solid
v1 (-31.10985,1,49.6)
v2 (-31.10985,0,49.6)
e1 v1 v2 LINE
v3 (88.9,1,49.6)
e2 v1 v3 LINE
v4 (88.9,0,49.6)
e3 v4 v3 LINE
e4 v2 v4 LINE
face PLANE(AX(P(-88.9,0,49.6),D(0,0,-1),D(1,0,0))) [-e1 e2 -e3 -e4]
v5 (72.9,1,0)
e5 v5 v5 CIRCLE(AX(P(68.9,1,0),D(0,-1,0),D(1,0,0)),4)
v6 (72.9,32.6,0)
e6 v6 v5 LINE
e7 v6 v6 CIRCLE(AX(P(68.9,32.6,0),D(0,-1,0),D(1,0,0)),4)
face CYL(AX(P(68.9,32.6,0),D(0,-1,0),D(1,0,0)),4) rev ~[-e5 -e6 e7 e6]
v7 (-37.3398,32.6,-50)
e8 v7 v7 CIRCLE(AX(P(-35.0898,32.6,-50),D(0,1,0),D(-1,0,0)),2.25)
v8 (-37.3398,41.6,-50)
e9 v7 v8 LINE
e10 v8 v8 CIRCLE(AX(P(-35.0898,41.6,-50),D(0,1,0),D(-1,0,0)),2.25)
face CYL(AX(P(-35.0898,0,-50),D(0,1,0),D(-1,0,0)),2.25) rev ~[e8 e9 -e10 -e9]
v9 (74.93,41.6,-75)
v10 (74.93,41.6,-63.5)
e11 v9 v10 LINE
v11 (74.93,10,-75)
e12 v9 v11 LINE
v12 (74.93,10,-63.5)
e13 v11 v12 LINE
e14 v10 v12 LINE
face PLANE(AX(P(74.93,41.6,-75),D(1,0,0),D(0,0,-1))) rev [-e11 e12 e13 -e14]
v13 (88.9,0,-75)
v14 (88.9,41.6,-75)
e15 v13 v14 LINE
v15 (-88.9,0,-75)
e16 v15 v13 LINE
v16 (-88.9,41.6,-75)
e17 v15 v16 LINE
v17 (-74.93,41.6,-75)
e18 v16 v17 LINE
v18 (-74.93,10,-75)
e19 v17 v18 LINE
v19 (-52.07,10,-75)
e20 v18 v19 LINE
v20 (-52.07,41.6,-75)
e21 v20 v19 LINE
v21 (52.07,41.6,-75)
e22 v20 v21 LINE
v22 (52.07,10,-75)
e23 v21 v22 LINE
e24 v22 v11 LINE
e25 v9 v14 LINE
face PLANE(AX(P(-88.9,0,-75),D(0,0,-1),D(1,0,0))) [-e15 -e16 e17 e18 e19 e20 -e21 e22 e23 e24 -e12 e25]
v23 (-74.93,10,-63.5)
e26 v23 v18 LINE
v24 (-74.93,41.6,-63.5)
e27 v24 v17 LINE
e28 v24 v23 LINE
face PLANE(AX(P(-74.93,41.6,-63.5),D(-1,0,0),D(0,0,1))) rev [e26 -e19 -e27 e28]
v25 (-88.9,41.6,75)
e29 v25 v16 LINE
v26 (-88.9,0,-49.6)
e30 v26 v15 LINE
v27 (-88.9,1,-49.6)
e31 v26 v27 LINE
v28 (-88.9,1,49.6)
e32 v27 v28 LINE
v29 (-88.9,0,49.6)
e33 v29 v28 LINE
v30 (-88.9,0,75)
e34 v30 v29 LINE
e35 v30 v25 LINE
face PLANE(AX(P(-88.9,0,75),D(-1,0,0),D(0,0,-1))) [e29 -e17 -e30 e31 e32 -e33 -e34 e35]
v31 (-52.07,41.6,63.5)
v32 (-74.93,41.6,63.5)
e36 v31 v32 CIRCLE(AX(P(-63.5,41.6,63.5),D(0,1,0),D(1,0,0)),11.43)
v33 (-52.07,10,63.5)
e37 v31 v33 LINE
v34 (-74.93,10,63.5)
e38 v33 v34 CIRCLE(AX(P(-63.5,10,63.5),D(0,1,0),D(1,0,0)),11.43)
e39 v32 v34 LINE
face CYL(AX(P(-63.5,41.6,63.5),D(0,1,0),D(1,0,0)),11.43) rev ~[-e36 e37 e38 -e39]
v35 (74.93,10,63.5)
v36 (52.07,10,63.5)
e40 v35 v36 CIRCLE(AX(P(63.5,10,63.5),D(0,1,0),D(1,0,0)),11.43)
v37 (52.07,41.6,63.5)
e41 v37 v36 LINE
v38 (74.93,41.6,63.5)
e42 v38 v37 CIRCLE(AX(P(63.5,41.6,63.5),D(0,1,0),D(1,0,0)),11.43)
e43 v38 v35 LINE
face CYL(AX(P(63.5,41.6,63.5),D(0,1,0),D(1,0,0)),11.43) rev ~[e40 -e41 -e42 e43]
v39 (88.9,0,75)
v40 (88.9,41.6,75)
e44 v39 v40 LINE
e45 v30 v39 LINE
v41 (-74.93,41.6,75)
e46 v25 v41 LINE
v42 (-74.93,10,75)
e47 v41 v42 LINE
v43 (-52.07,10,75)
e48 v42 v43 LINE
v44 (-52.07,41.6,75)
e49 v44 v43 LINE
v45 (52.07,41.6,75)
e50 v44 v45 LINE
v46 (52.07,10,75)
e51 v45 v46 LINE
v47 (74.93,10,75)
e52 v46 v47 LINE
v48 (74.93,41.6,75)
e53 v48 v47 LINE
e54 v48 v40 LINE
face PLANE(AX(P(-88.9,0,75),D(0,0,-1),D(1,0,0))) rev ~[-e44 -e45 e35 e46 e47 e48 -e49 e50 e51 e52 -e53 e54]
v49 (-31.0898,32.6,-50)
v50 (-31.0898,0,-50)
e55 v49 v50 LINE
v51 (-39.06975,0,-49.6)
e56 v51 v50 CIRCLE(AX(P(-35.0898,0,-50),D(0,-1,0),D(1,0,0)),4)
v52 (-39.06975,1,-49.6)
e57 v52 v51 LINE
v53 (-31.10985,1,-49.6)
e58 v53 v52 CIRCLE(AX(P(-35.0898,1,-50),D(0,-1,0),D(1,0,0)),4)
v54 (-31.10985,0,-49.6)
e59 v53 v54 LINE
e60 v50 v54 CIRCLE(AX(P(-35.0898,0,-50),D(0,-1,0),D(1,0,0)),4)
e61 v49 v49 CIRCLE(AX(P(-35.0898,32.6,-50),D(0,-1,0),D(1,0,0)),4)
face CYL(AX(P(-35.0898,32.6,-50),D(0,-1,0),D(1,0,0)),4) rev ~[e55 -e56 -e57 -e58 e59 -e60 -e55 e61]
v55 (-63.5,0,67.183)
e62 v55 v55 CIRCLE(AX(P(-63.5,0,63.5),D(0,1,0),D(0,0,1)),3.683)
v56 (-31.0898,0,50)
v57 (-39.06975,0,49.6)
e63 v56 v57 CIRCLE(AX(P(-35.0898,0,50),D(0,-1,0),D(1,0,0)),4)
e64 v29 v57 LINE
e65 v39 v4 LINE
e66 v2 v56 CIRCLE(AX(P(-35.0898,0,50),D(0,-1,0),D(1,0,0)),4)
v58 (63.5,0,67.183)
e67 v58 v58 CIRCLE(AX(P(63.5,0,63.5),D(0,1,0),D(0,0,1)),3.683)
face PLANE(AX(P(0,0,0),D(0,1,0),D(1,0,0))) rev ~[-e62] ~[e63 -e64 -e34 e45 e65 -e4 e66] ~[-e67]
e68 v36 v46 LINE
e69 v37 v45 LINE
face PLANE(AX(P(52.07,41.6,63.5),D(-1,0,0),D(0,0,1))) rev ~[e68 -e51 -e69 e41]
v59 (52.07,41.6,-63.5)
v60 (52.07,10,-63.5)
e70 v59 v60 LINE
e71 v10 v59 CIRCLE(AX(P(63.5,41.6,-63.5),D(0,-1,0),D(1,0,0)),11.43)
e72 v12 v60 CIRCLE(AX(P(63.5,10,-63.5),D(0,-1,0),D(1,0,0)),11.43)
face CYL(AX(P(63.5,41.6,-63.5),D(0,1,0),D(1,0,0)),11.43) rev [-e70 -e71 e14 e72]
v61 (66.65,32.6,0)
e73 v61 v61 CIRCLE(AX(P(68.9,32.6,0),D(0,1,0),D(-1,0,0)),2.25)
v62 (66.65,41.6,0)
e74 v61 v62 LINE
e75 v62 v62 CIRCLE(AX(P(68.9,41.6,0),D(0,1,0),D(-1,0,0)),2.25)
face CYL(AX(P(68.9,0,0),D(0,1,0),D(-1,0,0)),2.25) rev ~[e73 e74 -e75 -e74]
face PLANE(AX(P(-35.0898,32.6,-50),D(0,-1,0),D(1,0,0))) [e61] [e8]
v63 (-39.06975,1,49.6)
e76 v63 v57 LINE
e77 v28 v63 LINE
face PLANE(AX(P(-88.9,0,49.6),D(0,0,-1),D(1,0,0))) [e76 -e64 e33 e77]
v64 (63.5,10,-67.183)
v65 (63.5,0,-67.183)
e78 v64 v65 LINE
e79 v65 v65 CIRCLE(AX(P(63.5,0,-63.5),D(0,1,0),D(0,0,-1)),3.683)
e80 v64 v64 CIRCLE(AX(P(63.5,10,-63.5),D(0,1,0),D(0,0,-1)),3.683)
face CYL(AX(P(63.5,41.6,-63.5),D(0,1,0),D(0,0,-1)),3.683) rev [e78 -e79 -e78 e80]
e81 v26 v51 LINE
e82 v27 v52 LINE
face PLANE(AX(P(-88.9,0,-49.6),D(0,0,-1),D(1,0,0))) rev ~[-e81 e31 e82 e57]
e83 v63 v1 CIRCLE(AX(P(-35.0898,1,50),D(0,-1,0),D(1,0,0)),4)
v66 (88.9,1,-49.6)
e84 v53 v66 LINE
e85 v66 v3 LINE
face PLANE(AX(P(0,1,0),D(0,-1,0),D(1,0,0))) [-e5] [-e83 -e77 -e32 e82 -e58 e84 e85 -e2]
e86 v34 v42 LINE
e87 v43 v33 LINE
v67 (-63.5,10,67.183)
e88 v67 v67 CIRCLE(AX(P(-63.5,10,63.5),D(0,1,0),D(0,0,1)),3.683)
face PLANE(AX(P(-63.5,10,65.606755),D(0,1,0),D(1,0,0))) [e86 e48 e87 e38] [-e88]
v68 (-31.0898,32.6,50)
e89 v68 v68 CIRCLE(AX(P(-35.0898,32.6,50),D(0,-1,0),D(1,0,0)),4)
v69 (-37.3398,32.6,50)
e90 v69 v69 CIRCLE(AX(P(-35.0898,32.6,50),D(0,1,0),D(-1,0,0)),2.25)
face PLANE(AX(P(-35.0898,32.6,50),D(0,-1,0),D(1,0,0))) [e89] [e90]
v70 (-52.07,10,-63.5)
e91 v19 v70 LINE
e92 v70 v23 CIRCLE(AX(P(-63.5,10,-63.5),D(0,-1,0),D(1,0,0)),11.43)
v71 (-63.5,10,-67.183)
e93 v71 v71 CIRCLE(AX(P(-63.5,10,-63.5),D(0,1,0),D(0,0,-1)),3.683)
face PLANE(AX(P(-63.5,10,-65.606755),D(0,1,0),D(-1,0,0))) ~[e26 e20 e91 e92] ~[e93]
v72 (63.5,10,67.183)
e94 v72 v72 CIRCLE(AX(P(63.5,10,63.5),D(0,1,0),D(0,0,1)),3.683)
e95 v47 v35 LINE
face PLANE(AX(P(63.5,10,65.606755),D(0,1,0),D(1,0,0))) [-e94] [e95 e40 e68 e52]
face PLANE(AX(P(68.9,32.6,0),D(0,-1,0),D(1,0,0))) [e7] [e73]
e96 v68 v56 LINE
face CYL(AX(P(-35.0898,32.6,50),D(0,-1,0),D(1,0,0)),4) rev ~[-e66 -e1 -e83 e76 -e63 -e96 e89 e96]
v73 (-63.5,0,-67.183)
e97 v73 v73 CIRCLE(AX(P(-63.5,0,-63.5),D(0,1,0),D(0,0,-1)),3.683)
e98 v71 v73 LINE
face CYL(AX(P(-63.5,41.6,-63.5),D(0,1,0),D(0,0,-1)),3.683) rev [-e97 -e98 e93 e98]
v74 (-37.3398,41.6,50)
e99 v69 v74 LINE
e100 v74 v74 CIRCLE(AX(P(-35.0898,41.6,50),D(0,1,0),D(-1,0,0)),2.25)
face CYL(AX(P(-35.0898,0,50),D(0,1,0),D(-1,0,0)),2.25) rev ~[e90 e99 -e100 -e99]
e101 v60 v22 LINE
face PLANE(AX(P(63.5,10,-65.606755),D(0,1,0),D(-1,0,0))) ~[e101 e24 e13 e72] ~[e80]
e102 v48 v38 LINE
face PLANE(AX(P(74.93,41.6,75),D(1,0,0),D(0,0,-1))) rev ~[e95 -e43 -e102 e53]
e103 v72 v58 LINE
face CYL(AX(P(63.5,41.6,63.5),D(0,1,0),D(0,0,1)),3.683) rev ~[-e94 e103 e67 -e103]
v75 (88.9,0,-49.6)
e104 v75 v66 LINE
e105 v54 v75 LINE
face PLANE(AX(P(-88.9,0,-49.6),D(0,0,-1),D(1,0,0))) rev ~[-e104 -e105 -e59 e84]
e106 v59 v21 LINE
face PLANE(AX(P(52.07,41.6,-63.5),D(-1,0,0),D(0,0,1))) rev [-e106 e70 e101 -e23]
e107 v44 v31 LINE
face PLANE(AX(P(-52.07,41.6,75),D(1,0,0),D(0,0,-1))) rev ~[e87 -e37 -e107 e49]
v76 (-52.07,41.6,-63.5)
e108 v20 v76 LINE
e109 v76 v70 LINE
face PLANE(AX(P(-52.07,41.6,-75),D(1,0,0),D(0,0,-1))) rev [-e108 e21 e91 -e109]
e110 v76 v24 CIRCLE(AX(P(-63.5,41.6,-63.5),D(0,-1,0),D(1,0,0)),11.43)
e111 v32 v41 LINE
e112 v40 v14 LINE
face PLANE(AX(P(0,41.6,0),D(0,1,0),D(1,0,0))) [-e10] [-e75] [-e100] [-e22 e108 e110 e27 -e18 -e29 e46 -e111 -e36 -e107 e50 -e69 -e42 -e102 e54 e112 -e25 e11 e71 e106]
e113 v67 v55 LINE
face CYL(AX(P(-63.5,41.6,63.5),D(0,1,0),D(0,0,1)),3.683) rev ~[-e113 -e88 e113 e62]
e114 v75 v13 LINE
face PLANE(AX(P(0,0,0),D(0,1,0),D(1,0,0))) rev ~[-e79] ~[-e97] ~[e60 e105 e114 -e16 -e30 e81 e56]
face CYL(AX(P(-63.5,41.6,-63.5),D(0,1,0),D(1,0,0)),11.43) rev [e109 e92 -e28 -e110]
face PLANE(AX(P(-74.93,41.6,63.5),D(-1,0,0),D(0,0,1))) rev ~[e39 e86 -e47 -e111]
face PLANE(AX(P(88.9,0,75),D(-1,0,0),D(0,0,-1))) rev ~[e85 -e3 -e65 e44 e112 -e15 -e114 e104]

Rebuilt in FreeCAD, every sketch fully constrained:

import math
import FreeCAD as App
import Part
import Sketcher

V = App.Vector

doc = App.newDocument("Part")
params = doc.addObject("Spreadsheet::Sheet", "Params")
for row, (alias, value) in enumerate([
    ("sketch1_height", "150 mm"),
    ("sketch1_width", "177.8 mm"),
    ("pad1_length", "41.6 mm"),
    ("sketch3_radius", "11.43 mm"),
    ("sketch3_height", "11.5 mm"),
    ("pocket2_length", "31.6 mm"),
    ("sketch4_diameter", "4.5 mm"),
    ("hole_diameter", "4.5 mm"),
    ("hole_cbore_diameter", "8 mm"),
    ("hole_cbore_depth", "32.6 mm"),
    ("sketch5_width", "177.8 mm"),
    ("sketch5_height", "99.2 mm"),
    ("pocket3_length", "1 mm"),
], start=1):
    params.set(f"A{row}", alias)
    params.set(f"B{row}", "=" + value)
    params.setAlias(f"B{row}", alias)

body = doc.addObject("PartDesign::Body", "Body")

# Sketch on XZ plane
sketch1 = body.newObject("Sketcher::SketchObject", "Sketch")
sketch1.AttachmentSupport = (doc.getObject("XZ_Plane"), [""])
sketch1.MapMode = "FlatFace"
sketch1.addGeometry(Part.LineSegment(V(-89, -75, 0), V(-89, 75, 0)), False)
sketch1.addGeometry(Part.LineSegment(V(-89, 75, 0), V(89, 75, 0)), False)
sketch1.addGeometry(Part.LineSegment(V(89, 75, 0), V(89, -75, 0)), False)
sketch1.addGeometry(Part.LineSegment(V(89, -75, 0), V(-89, -75, 0)), False)
sketch1.addConstraint(Sketcher.Constraint("Coincident", 0, 2, 1, 1))
sketch1.addConstraint(Sketcher.Constraint("Coincident", 1, 2, 2, 1))
sketch1.addConstraint(Sketcher.Constraint("Coincident", 2, 2, 3, 1))
sketch1.addConstraint(Sketcher.Constraint("Coincident", 3, 2, 0, 1))
sketch1.addConstraint(Sketcher.Constraint("Vertical", 0))
sketch1.addConstraint(Sketcher.Constraint("Horizontal", 1))
sketch1.addConstraint(Sketcher.Constraint("Vertical", 2))
sketch1.addConstraint(Sketcher.Constraint("Horizontal", 3))
sketch1.addConstraint(Sketcher.Constraint("Symmetric", 0, 2, 2, 2, -1, 1))
sketch1.addConstraint(Sketcher.Constraint("DistanceY", 0, 1, 0, 2, 150.0))
sketch1.addConstraint(Sketcher.Constraint("DistanceX", 1, 1, 1, 2, 177.8))
sketch1.setExpression("Constraints[9]", "Params.sketch1_height")
sketch1.setExpression("Constraints[10]", "Params.sketch1_width")
pad1 = body.newObject("PartDesign::Pad", "Pad")
pad1.Profile = sketch1
pad1.setExpression("Length", "Params.pad1_length")
pad1.Reversed = True

# Sketch on XZ plane
sketch2 = body.newObject("Sketcher::SketchObject", "Sketch001")
sketch2.AttachmentSupport = (doc.getObject("XZ_Plane"), [""])
sketch2.MapMode = "FlatFace"
sketch2.AttachmentOffset = App.Placement(V(0, 0, -41.6), App.Rotation())
sketch2.addGeometry(Part.Circle(V(63.5, 63.5, 0), V(0, 0, 1), 3.7), False)
sketch2.addGeometry(Part.Circle(V(-63.5, 63.5, 0), V(0, 0, 1), 3.7), False)
sketch2.addConstraint(Sketcher.Constraint("Equal", 0, 1))
sketch2.addConstraint(Sketcher.Constraint("Symmetric", 0, 3, 1, 3, -2))
sketch2.addConstraint(Sketcher.Constraint("Diameter", 0, 7.366))
sketch2.addConstraint(Sketcher.Constraint("DistanceX", 1, 3, 0, 3, 127.0))
sketch2.addConstraint(Sketcher.Constraint("DistanceY", -1, 1, 0, 3, 63.5))
pocket1 = body.newObject("PartDesign::Pocket", "Pocket")
pocket1.Profile = sketch2
pocket1.Type = "ThroughAll"
pocket1.Reversed = True

# Sketch on XZ plane
sketch3 = body.newObject("Sketcher::SketchObject", "Sketch002")
sketch3.AttachmentSupport = (doc.getObject("XZ_Plane"), [""])
sketch3.MapMode = "FlatFace"
sketch3.AttachmentOffset = App.Placement(V(0, 0, -41.6), App.Rotation())
sketch3.addGeometry(Part.LineSegment(V(-75, 64, 0), V(-75, 75, 0)), False)
sketch3.addGeometry(Part.LineSegment(V(-75, 75, 0), V(-52, 75, 0)), False)
sketch3.addGeometry(Part.LineSegment(V(-52, 75, 0), V(-52, 64, 0)), False)
sketch3.addGeometry(Part.ArcOfCircle(Part.Circle(V(-64, 64, 0), V(0, 0, 1), 11), math.radians(180), math.radians(360)), False)
sketch3.addGeometry(Part.LineSegment(V(52, 64, 0), V(52, 75, 0)), False)
sketch3.addGeometry(Part.LineSegment(V(52, 75, 0), V(75, 75, 0)), False)
sketch3.addGeometry(Part.LineSegment(V(75, 75, 0), V(75, 64, 0)), False)
sketch3.addGeometry(Part.ArcOfCircle(Part.Circle(V(64, 64, 0), V(0, 0, 1), 11), math.radians(180), math.radians(360)), False)
sketch3.addConstraint(Sketcher.Constraint("Coincident", 0, 2, 1, 1))
sketch3.addConstraint(Sketcher.Constraint("Coincident", 1, 2, 2, 1))
sketch3.addConstraint(Sketcher.Constraint("Tangent", 2, 2, 3, 2))
sketch3.addConstraint(Sketcher.Constraint("Tangent", 3, 1, 0, 1))
sketch3.addConstraint(Sketcher.Constraint("Coincident", 4, 2, 5, 1))
sketch3.addConstraint(Sketcher.Constraint("Coincident", 5, 2, 6, 1))
sketch3.addConstraint(Sketcher.Constraint("Tangent", 6, 2, 7, 2))
sketch3.addConstraint(Sketcher.Constraint("Tangent", 7, 1, 4, 1))
sketch3.addConstraint(Sketcher.Constraint("Vertical", 0))
sketch3.addConstraint(Sketcher.Constraint("Horizontal", 1))
sketch3.addConstraint(Sketcher.Constraint("Vertical", 2))
sketch3.addConstraint(Sketcher.Constraint("Vertical", 4))
sketch3.addConstraint(Sketcher.Constraint("Horizontal", 5))
sketch3.addConstraint(Sketcher.Constraint("Vertical", 6))
sketch3.addConstraint(Sketcher.Constraint("Equal", 3, 7))
sketch3.addConstraint(Sketcher.Constraint("Symmetric", 3, 3, 7, 3, -2))
sketch3.addConstraint(Sketcher.Constraint("Horizontal", 1, 2, 4, 2))
sketch3.addConstraint(Sketcher.Constraint("Radius", 3, 11.43))
sketch3.addConstraint(Sketcher.Constraint("DistanceY", 0, 1, 0, 2, 11.5))
sketch3.addConstraint(Sketcher.Constraint("DistanceY", -1, 1, 0, 2, 75.0))
sketch3.addConstraint(Sketcher.Constraint("DistanceX", 3, 3, 7, 3, 127.0))
sketch3.setExpression("Constraints[17]", "Params.sketch3_radius")
sketch3.setExpression("Constraints[18]", "Params.sketch3_height")
pocket2 = body.newObject("PartDesign::Pocket", "Pocket001")
pocket2.Profile = sketch3
pocket2.setExpression("Length", "Params.pocket2_length")
pocket2.Reversed = True
doc.recompute()

mirrored = body.newObject("PartDesign::Mirrored", "Mirrored")
mirrored.Originals = [pocket1, pocket2]
mirrored.MirrorPlane = (doc.getObject("XY_Plane"), [""])
body.Tip = mirrored

# Sketch on XZ plane
sketch4 = body.newObject("Sketcher::SketchObject", "Sketch003")
sketch4.AttachmentSupport = (doc.getObject("XZ_Plane"), [""])
sketch4.MapMode = "FlatFace"
sketch4.addGeometry(Part.Circle(V(68.9, 0, 0), V(0, 0, 1), 2.2), False)
sketch4.addGeometry(Part.Circle(V(-35.1, 50, 0), V(0, 0, 1), 2.2), False)
sketch4.addGeometry(Part.Circle(V(-35.1, -50, 0), V(0, 0, 1), 2.2), False)
sketch4.addConstraint(Sketcher.Constraint("Equal", 0, 1))
sketch4.addConstraint(Sketcher.Constraint("Equal", 1, 2))
sketch4.addConstraint(Sketcher.Constraint("Symmetric", 1, 3, 2, 3, -1))
sketch4.addConstraint(Sketcher.Constraint("PointOnObject", 0, 3, -1))
sketch4.addConstraint(Sketcher.Constraint("Diameter", 0, 4.5))
sketch4.addConstraint(Sketcher.Constraint("DistanceY", -1, 1, 1, 3, 50.0))
sketch4.addConstraint(Sketcher.Constraint("DistanceX", -1, 1, 0, 3, 68.9))
sketch4.addConstraint(Sketcher.Constraint("DistanceX", 1, 3, -1, 1, 35.0898))
sketch4.setExpression("Constraints[4]", "Params.sketch4_diameter")
doc.recompute()
hole = body.newObject("PartDesign::Hole", "Hole")
hole.Profile = sketch4
hole.ThreadType = "None"
hole.setExpression("Diameter", "Params.hole_diameter")
hole.DepthType = "ThroughAll"
hole.HoleCutType = "Counterbore"
hole.setExpression("HoleCutDiameter", "Params.hole_cbore_diameter")
hole.setExpression("HoleCutDepth", "Params.hole_cbore_depth")

# Sketch on XZ plane
sketch5 = body.newObject("Sketcher::SketchObject", "Sketch004")
sketch5.AttachmentSupport = (doc.getObject("XZ_Plane"), [""])
sketch5.MapMode = "FlatFace"
sketch5.addGeometry(Part.LineSegment(V(-89, 50, 0), V(-89, -50, 0)), False)
sketch5.addGeometry(Part.LineSegment(V(-89, -50, 0), V(89, -50, 0)), False)
sketch5.addGeometry(Part.LineSegment(V(89, -50, 0), V(89, 50, 0)), False)
sketch5.addGeometry(Part.LineSegment(V(89, 50, 0), V(-89, 50, 0)), False)
sketch5.addConstraint(Sketcher.Constraint("Coincident", 0, 2, 1, 1))
sketch5.addConstraint(Sketcher.Constraint("Coincident", 1, 2, 2, 1))
sketch5.addConstraint(Sketcher.Constraint("Coincident", 2, 2, 3, 1))
sketch5.addConstraint(Sketcher.Constraint("Coincident", 3, 2, 0, 1))
sketch5.addConstraint(Sketcher.Constraint("Vertical", 0))
sketch5.addConstraint(Sketcher.Constraint("Horizontal", 1))
sketch5.addConstraint(Sketcher.Constraint("Vertical", 2))
sketch5.addConstraint(Sketcher.Constraint("Horizontal", 3))
sketch5.addConstraint(Sketcher.Constraint("Symmetric", 0, 2, 2, 2, -1, 1))
sketch5.addConstraint(Sketcher.Constraint("DistanceX", 1, 1, 1, 2, 177.8))
sketch5.addConstraint(Sketcher.Constraint("DistanceY", 0, 2, 0, 1, 99.2))
sketch5.setExpression("Constraints[9]", "Params.sketch5_width")
sketch5.setExpression("Constraints[10]", "Params.sketch5_height")
pocket3 = body.newObject("PartDesign::Pocket", "Pocket002")
pocket3.Profile = sketch5
pocket3.setExpression("Length", "Params.pocket3_length")

doc.recompute()
